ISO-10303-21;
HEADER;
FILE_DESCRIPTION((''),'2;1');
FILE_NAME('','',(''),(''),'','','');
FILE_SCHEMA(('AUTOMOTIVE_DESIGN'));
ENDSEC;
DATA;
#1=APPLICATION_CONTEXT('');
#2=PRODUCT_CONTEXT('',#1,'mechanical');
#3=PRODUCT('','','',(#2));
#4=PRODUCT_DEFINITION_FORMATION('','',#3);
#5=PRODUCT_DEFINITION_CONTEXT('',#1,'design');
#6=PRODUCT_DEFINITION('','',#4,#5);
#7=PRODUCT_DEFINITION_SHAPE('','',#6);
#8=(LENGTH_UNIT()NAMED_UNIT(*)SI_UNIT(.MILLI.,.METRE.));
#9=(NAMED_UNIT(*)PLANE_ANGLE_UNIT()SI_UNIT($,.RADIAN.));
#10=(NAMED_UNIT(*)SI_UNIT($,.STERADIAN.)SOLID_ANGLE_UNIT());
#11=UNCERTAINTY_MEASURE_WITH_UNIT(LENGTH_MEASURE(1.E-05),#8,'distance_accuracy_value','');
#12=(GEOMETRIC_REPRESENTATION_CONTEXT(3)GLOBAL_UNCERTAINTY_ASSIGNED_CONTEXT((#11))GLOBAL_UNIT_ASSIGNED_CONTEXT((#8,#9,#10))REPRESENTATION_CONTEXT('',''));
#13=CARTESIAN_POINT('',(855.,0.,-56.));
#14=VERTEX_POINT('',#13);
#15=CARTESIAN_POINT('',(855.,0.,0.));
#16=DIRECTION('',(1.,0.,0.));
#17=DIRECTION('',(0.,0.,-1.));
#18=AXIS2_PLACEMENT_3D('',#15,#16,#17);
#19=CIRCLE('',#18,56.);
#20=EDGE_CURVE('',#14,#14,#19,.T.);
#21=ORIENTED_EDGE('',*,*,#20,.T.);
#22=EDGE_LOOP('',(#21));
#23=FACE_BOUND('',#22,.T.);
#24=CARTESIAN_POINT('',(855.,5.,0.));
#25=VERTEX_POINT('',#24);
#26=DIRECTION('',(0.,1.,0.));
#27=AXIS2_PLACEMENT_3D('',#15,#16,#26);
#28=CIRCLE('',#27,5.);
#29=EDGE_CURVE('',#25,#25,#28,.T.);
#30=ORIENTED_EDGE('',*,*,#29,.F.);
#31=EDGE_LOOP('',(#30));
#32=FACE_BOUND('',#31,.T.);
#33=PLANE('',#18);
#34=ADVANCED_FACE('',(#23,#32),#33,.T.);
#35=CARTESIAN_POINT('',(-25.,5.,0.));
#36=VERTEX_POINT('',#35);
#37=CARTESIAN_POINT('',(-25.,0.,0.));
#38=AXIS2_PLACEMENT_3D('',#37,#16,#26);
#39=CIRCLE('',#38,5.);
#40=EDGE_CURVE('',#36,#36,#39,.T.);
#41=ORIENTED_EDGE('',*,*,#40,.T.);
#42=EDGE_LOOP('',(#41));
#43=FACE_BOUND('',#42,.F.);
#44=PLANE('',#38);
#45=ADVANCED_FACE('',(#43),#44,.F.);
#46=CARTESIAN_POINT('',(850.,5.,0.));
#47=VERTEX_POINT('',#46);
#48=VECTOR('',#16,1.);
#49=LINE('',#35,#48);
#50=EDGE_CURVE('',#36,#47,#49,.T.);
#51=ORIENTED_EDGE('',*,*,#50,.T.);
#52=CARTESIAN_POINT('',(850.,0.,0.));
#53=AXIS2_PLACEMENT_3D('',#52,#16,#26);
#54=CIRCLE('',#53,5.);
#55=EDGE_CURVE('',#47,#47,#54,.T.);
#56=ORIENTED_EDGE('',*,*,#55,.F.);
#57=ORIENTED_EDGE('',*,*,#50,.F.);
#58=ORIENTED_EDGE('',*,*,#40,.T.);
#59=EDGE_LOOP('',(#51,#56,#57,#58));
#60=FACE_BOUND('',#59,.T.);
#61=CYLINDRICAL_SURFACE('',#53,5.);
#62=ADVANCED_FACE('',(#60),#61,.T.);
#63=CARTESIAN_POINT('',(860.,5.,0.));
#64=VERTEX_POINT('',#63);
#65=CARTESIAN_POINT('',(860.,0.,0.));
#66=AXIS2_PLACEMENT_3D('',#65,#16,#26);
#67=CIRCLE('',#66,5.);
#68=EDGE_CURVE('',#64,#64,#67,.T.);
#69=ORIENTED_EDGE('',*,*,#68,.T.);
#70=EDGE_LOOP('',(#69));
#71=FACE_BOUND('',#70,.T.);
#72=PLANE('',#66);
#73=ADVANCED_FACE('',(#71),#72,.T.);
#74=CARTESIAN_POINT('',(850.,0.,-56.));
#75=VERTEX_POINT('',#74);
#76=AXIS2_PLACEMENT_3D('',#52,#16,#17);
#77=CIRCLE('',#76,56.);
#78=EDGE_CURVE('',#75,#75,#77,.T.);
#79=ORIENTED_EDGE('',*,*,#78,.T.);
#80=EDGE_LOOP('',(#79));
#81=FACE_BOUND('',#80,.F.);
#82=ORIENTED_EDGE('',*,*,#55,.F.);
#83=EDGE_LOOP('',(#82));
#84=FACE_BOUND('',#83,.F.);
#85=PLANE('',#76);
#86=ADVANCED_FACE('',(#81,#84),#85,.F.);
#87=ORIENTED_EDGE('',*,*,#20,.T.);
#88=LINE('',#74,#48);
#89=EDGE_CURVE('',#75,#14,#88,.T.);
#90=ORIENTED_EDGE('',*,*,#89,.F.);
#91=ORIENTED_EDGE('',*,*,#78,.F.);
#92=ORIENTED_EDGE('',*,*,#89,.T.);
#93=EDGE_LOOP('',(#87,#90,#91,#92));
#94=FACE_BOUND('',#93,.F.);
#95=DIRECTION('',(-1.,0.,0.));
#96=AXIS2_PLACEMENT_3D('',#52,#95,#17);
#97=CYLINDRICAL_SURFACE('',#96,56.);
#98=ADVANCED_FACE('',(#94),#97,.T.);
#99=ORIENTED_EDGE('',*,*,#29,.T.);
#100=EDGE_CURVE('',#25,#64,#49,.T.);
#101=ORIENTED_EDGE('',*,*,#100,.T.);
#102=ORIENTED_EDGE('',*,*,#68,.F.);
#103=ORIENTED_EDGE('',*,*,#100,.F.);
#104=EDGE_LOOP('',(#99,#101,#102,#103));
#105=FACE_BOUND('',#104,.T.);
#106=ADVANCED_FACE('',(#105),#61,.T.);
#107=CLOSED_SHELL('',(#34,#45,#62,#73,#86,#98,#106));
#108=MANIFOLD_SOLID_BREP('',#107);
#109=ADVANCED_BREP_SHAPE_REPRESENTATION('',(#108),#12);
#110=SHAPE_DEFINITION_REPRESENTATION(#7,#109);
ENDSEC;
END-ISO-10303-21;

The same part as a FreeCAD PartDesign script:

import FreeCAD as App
import Part
import Sketcher
from FreeCAD import Vector
Q = App.Units.Quantity

doc = App.newDocument("Part")
body = doc.addObject("PartDesign::Body", "Body")

# Sketch on XY plane
sketch1 = body.newObject("Sketcher::SketchObject", "Sketch")
sketch1.AttachmentSupport = (doc.getObject("XY_Plane"), [""])
sketch1.MapMode = "FlatFace"
sketch1.addGeometry(Part.Circle(Vector(0, 0, 0), Vector(0, 0, 1), 56), False)
sketch1.addConstraint([
    Sketcher.Constraint("Coincident", 0, 3, -1, 1),
    Sketcher.Constraint("Diameter", 0, Q("112 mm")),
])
pad1 = body.newObject("PartDesign::Pad", "Pad")
pad1.Profile = sketch1
pad1.Length = 5
body2 = doc.addObject("PartDesign::Body", "Body001")
doc.recompute()

body.Placement = App.Placement(Vector(0, 0, 0), App.Rotation(Vector(0, 1, 0), 90))
boolean = body2.newObject("PartDesign::Boolean", "Boolean")
boolean.Type = "Fuse"
boolean.addObjects([body])
body3 = doc.addObject("PartDesign::Body", "Body002")

# Sketch on YZ plane
sketch2 = body3.newObject("Sketcher::SketchObject", "Sketch001")
sketch2.AttachmentSupport = (doc.getObject("YZ_Plane002"), [""])
sketch2.MapMode = "FlatFace"
sketch2.addGeometry(Part.Circle(Vector(0, 0, 0), Vector(0, 0, 1), 5), False)
sketch2.addConstraint([
    Sketcher.Constraint("Coincident", 0, 3, -1, 1),
    Sketcher.Constraint("Diameter", 0, Q("10 mm")),
])
pad2 = body3.newObject("PartDesign::Pad", "Pad001")
pad2.Profile = sketch2
pad2.Type = "TwoLengths"
pad2.Length = 10
pad2.Length2 = 875
doc.recompute()

boolean2 = body3.newObject("PartDesign::Boolean", "Boolean001")
boolean2.Type = "Fuse"
boolean2.addObjects([body2])
body4 = doc.addObject("PartDesign::Body", "Body003")
doc.recompute()

body3.Placement = App.Placement(Vector(850, 0, 0), App.Rotation(Vector(0, 0, 1), 0))
boolean3 = body4.newObject("PartDesign::Boolean", "Boolean002")
boolean3.Type = "Fuse"
boolean3.addObjects([body3])

doc.recompute()
